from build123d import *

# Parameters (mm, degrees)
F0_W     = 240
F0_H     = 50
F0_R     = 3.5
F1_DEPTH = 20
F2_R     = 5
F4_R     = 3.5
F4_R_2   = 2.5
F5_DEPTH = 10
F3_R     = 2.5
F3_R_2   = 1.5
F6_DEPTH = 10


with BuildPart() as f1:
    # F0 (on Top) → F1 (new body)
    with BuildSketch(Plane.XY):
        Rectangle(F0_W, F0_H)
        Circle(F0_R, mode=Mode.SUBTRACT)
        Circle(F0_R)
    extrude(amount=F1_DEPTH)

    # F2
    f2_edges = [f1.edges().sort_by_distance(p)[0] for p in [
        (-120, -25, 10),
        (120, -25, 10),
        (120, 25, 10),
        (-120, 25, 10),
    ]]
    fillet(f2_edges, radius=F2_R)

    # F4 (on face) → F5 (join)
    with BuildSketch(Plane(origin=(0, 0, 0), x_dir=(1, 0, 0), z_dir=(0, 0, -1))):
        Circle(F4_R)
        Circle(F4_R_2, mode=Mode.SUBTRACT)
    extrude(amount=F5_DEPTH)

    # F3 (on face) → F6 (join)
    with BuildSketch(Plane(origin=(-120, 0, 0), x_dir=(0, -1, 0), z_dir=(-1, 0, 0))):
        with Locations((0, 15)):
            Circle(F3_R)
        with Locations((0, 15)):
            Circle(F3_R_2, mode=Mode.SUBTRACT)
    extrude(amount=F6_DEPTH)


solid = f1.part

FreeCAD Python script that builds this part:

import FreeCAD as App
import Part
import Sketcher
from FreeCAD import Vector


def edges_at(feature, points):
    """Names of the edges that pass closest to the given points."""
    edges = feature.Shape.Edges
    near = lambda p: min(range(len(edges)), key=lambda i: edges[i].distToShape(Part.Vertex(*p))[0])
    return sorted({f"Edge{near(p) + 1}" for p in points})

doc = App.newDocument("Part")
params = doc.addObject("Spreadsheet::Sheet", "Params")
for row, (alias, value) in enumerate([
    ("sketch1_width", "240 mm"),
    ("sketch1_height", "50 mm"),
    ("pad1_length", "20 mm"),
    ("fillet_radius", "5 mm"),
    ("sketch2_diameter", "7 mm"),
    ("sketch2_diameter2", "5 mm"),
    ("pad2_length", "10 mm"),
    ("sketch3_diameter", "5 mm"),
    ("sketch3_diameter2", "3 mm"),
    ("pad3_length", "10 mm"),
], start=1):
    params.set(f"A{row}", alias)
    params.set(f"B{row}", "=" + value)
    params.setAlias(f"B{row}", alias)

body = doc.addObject("PartDesign::Body", "Body")

# Sketch on XY plane
sketch1 = doc.addObject("Sketcher::SketchObject", "Sketch")
body.addObject(sketch1)
sketch1.AttachmentSupport = (doc.XY_Plane, [""])
sketch1.MapMode = "FlatFace"
sketch1.addGeometry([
    Part.LineSegment(Vector(-120, 25, 0), Vector(-120, -25, 0)),
    Part.LineSegment(Vector(-120, -25, 0), Vector(120, -25, 0)),
    Part.LineSegment(Vector(120, -25, 0), Vector(120, 25, 0)),
    Part.LineSegment(Vector(120, 25, 0), Vector(-120, 25, 0)),
], False)
sketch1.addConstraint([
    Sketcher.Constraint("Coincident", 0, 2, 1, 1),
    Sketcher.Constraint("Coincident", 1, 2, 2, 1),
    Sketcher.Constraint("Coincident", 2, 2, 3, 1),
    Sketcher.Constraint("Coincident", 3, 2, 0, 1),
    Sketcher.Constraint("Vertical", 0),
    Sketcher.Constraint("Horizontal", 1),
    Sketcher.Constraint("Vertical", 2),
    Sketcher.Constraint("Horizontal", 3),
    Sketcher.Constraint("Symmetric", 0, 2, 2, 2, -1, 1),
    Sketcher.Constraint("DistanceX", 1, 1, 1, 2, 240.0),
    Sketcher.Constraint("DistanceY", 0, 2, 0, 1, 50.0),
])
sketch1.setExpression("Constraints[9]", "Params.sketch1_width")
sketch1.setExpression("Constraints[10]", "Params.sketch1_height")
pad1 = doc.addObject("PartDesign::Pad", "Pad")
body.addObject(pad1)
pad1.Profile = sketch1
pad1.setExpression("Length", "Params.pad1_length")
doc.recompute()

fillet = doc.addObject("PartDesign::Fillet", "Fillet")
body.addObject(fillet)
fillet.Base = (pad1, edges_at(pad1, [
    (-120, -25, 10),
    (120, -25, 10),
    (120, 25, 10),
    (-120, 25, 10),
]))
fillet.setExpression("Radius", "Params.fillet_radius")

# Sketch on XY plane
sketch2 = doc.addObject("Sketcher::SketchObject", "Sketch001")
body.addObject(sketch2)
sketch2.AttachmentSupport = (doc.XY_Plane, [""])
sketch2.MapMode = "FlatFace"
sketch2.addGeometry([
    Part.Circle(Vector(0, 0, 0), Vector(0, 0, 1), 3.5),
    Part.Circle(Vector(0, 0, 0), Vector(0, 0, 1), 2.5),
], False)
sketch2.addConstraint([
    Sketcher.Constraint("Coincident", 0, 3, -1, 1),
    Sketcher.Constraint("Coincident", 1, 3, -1, 1),
    Sketcher.Constraint("Diameter", 0, 7.0),
    Sketcher.Constraint("Diameter", 1, 5.0),
])
sketch2.setExpression("Constraints[2]", "Params.sketch2_diameter")
sketch2.setExpression("Constraints[3]", "Params.sketch2_diameter2")
pad2 = doc.addObject("PartDesign::Pad", "Pad001")
body.addObject(pad2)
pad2.Profile = sketch2
pad2.setExpression("Length", "Params.pad2_length")
pad2.Reversed = True

# Sketch on YZ plane
sketch3 = doc.addObject("Sketcher::SketchObject", "Sketch002")
body.addObject(sketch3)
sketch3.AttachmentSupport = (doc.YZ_Plane, [""])
sketch3.MapMode = "FlatFace"
sketch3.AttachmentOffset = App.Placement(Vector(0, 0, -120), App.Rotation())
sketch3.addGeometry([
    Part.Circle(Vector(0, 15, 0), Vector(0, 0, 1), 2.5),
    Part.Circle(Vector(0, 15, 0), Vector(0, 0, 1), 1.5),
], False)
sketch3.addConstraint([
    Sketcher.Constraint("Coincident", 1, 3, 0, 3),
    Sketcher.Constraint("PointOnObject", 0, 3, -2),
    Sketcher.Constraint("Diameter", 0, 5.0),
    Sketcher.Constraint("Diameter", 1, 3.0),
    Sketcher.Constraint("DistanceY", -1, 1, 0, 3, 15.0),
])
sketch3.setExpression("Constraints[2]", "Params.sketch3_diameter")
sketch3.setExpression("Constraints[3]", "Params.sketch3_diameter2")
pad3 = doc.addObject("PartDesign::Pad", "Pad002")
body.addObject(pad3)
pad3.Profile = sketch3
pad3.setExpression("Length", "Params.pad3_length")
pad3.Reversed = True

doc.recompute()
